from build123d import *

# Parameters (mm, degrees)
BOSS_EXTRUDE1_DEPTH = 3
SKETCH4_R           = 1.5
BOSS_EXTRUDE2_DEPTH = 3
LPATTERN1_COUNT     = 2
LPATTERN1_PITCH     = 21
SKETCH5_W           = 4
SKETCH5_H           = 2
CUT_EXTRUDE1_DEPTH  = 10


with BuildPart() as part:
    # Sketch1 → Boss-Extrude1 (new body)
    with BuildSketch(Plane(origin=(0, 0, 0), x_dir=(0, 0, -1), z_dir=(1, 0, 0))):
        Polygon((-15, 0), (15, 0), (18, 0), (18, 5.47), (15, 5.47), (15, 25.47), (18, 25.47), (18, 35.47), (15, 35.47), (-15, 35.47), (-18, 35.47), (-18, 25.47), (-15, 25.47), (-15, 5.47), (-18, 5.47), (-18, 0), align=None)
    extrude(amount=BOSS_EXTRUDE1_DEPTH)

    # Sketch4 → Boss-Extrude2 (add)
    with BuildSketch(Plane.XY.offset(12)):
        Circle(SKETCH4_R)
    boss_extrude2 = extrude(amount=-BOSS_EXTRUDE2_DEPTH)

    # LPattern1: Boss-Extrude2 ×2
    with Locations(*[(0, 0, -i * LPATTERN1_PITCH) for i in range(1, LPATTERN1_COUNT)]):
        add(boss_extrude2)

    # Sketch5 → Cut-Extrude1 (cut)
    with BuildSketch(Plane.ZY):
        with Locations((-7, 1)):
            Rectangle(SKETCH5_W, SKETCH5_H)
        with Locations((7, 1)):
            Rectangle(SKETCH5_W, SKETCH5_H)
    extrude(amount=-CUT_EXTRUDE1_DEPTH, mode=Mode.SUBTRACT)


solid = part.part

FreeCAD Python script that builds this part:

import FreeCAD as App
import Part
import Sketcher

doc = App.newDocument("Part")
body = doc.addObject("PartDesign::Body", "Body")

# Sketch on YZ plane
sketch1 = doc.addObject("Sketcher::SketchObject", "Sketch")
body.addObject(sketch1)
sketch1.AttachmentSupport = (doc.YZ_Plane, [""])
sketch1.MapMode = "FlatFace"
sketch1.addGeometry(Part.LineSegment(App.Vector(0, -18, 0), App.Vector(5.5, -18, 0)), False)
sketch1.addGeometry(Part.LineSegment(App.Vector(5.5, -18, 0), App.Vector(5.5, -15, 0)), False)
sketch1.addGeometry(Part.LineSegment(App.Vector(5.5, -15, 0), App.Vector(25.5, -15, 0)), False)
sketch1.addGeometry(Part.LineSegment(App.Vector(25.5, -15, 0), App.Vector(25.5, -18, 0)), False)
sketch1.addGeometry(Part.LineSegment(App.Vector(25.5, -18, 0), App.Vector(35.5, -18, 0)), False)
sketch1.addGeometry(Part.LineSegment(App.Vector(35.5, -18, 0), App.Vector(35.5, 18, 0)), False)
sketch1.addGeometry(Part.LineSegment(App.Vector(35.5, 18, 0), App.Vector(25.5, 18, 0)), False)
sketch1.addGeometry(Part.LineSegment(App.Vector(25.5, 18, 0), App.Vector(25.5, 15, 0)), False)
sketch1.addGeometry(Part.LineSegment(App.Vector(25.5, 15, 0), App.Vector(5.5, 15, 0)), False)
sketch1.addGeometry(Part.LineSegment(App.Vector(5.5, 15, 0), App.Vector(5.5, 18, 0)), False)
sketch1.addGeometry(Part.LineSegment(App.Vector(5.5, 18, 0), App.Vector(0, 18, 0)), False)
sketch1.addGeometry(Part.LineSegment(App.Vector(0, 18, 0), App.Vector(0, -18, 0)), False)
sketch1.addConstraint(Sketcher.Constraint("Coincident", 0, 2, 1, 1))
sketch1.addConstraint(Sketcher.Constraint("Coincident", 1, 2, 2, 1))
sketch1.addConstraint(Sketcher.Constraint("Coincident", 2, 2, 3, 1))
sketch1.addConstraint(Sketcher.Constraint("Coincident", 3, 2, 4, 1))
sketch1.addConstraint(Sketcher.Constraint("Coincident", 4, 2, 5, 1))
sketch1.addConstraint(Sketcher.Constraint("Coincident", 5, 2, 6, 1))
sketch1.addConstraint(Sketcher.Constraint("Coincident", 6, 2, 7, 1))
sketch1.addConstraint(Sketcher.Constraint("Coincident", 7, 2, 8, 1))
sketch1.addConstraint(Sketcher.Constraint("Coincident", 8, 2, 9, 1))
sketch1.addConstraint(Sketcher.Constraint("Coincident", 9, 2, 10, 1))
sketch1.addConstraint(Sketcher.Constraint("Coincident", 10, 2, 11, 1))
sketch1.addConstraint(Sketcher.Constraint("Coincident", 11, 2, 0, 1))
sketch1.addConstraint(Sketcher.Constraint("Horizontal", 0))
sketch1.addConstraint(Sketcher.Constraint("Vertical", 1))
sketch1.addConstraint(Sketcher.Constraint("Horizontal", 2))
sketch1.addConstraint(Sketcher.Constraint("Vertical", 3))
sketch1.addConstraint(Sketcher.Constraint("Horizontal", 4))
sketch1.addConstraint(Sketcher.Constraint("Vertical", 5))
sketch1.addConstraint(Sketcher.Constraint("Horizontal", 6))
sketch1.addConstraint(Sketcher.Constraint("Vertical", 7))
sketch1.addConstraint(Sketcher.Constraint("Horizontal", 8))
sketch1.addConstraint(Sketcher.Constraint("Vertical", 9))
sketch1.addConstraint(Sketcher.Constraint("Horizontal", 10))
sketch1.addConstraint(Sketcher.Constraint("Vertical", 11))
sketch1.addConstraint(Sketcher.Constraint("Symmetric", 10, 2, 11, 2, -1, 1))
sketch1.addConstraint(Sketcher.Constraint("Symmetric", 3, 2, 6, 2, -1))
sketch1.addConstraint(Sketcher.Constraint("Symmetric", 1, 2, 8, 2, -1))
sketch1.addConstraint(Sketcher.Constraint("Horizontal", 0, 2, 3, 2))
sketch1.addConstraint(Sketcher.Constraint("DistanceX", 2, 1, 2, 2, 20.0))
sketch1.addConstraint(Sketcher.Constraint("DistanceX", 4, 1, 4, 2, 10.0))
sketch1.addConstraint(Sketcher.Constraint("DistanceY", 1, 1, 1, 2, 3.0))
sketch1.addConstraint(Sketcher.Constraint("DistanceY", 5, 1, 5, 2, 36.0))
sketch1.addConstraint(Sketcher.Constraint("DistanceX", 0, 1, 0, 2, 5.47))
pad1 = doc.addObject("PartDesign::Pad", "Pad")
body.addObject(pad1)
pad1.Profile = sketch1
pad1.Length = 3

# Sketch on XY plane
sketch2 = doc.addObject("Sketcher::SketchObject", "Sketch001")
body.addObject(sketch2)
sketch2.AttachmentSupport = (doc.XY_Plane, [""])
sketch2.MapMode = "FlatFace"
sketch2.AttachmentOffset = App.Placement(App.Vector(0, 0, 12), App.Rotation())
sketch2.addGeometry(Part.Circle(App.Vector(0, 0, 0), App.Vector(0, 0, 1), 1.5), False)
sketch2.addConstraint(Sketcher.Constraint("Coincident", 0, 3, -1, 1))
sketch2.addConstraint(Sketcher.Constraint("Diameter", 0, 3.0))
pad2 = doc.addObject("PartDesign::Pad", "Pad001")
body.addObject(pad2)
pad2.Profile = sketch2
pad2.Length = 3
pad2.Reversed = True
doc.recompute()

linearpattern = doc.addObject("PartDesign::LinearPattern", "LinearPattern")
body.addObject(linearpattern)
linearpattern.Originals = [pad2]
linearpattern.Direction = (doc.Z_Axis, [""])
linearpattern.Mode = "offset"
linearpattern.Offset = 21
linearpattern.Occurrences = 2
linearpattern.Reversed = True
body.Tip = linearpattern

# Sketch on YZ plane
sketch3 = doc.addObject("Sketcher::SketchObject", "Sketch002")
body.addObject(sketch3)
sketch3.AttachmentSupport = (doc.YZ_Plane, [""])
sketch3.MapMode = "FlatFace"
sketch3.addGeometry(Part.LineSegment(App.Vector(2, -9, 0), App.Vector(0, -9, 0)), False)
sketch3.addGeometry(Part.LineSegment(App.Vector(0, -9, 0), App.Vector(0, -5, 0)), False)
sketch3.addGeometry(Part.LineSegment(App.Vector(0, -5, 0), App.Vector(2, -5, 0)), False)
sketch3.addGeometry(Part.LineSegment(App.Vector(2, -5, 0), App.Vector(2, -9, 0)), False)
sketch3.addGeometry(Part.LineSegment(App.Vector(2, 5, 0), App.Vector(0, 5, 0)), False)
sketch3.addGeometry(Part.LineSegment(App.Vector(0, 5, 0), App.Vector(0, 9, 0)), False)
sketch3.addGeometry(Part.LineSegment(App.Vector(0, 9, 0), App.Vector(2, 9, 0)), False)
sketch3.addGeometry(Part.LineSegment(App.Vector(2, 9, 0), App.Vector(2, 5, 0)), False)
sketch3.addConstraint(Sketcher.Constraint("Coincident", 0, 2, 1, 1))
sketch3.addConstraint(Sketcher.Constraint("Coincident", 1, 2, 2, 1))
sketch3.addConstraint(Sketcher.Constraint("Coincident", 2, 2, 3, 1))
sketch3.addConstraint(Sketcher.Constraint("Coincident", 3, 2, 0, 1))
sketch3.addConstraint(Sketcher.Constraint("Coincident", 4, 2, 5, 1))
sketch3.addConstraint(Sketcher.Constraint("Coincident", 5, 2, 6, 1))
sketch3.addConstraint(Sketcher.Constraint("Coincident", 6, 2, 7, 1))
sketch3.addConstraint(Sketcher.Constraint("Coincident", 7, 2, 4, 1))
sketch3.addConstraint(Sketcher.Constraint("Horizontal", 0))
sketch3.addConstraint(Sketcher.Constraint("Vertical", 1))
sketch3.addConstraint(Sketcher.Constraint("Horizontal", 2))
sketch3.addConstraint(Sketcher.Constraint("Vertical", 3))
sketch3.addConstraint(Sketcher.Constraint("Horizontal", 4))
sketch3.addConstraint(Sketcher.Constraint("Vertical", 5))
sketch3.addConstraint(Sketcher.Constraint("Horizontal", 6))
sketch3.addConstraint(Sketcher.Constraint("Vertical", 7))
sketch3.addConstraint(Sketcher.Constraint("Symmetric", 1, 2, 4, 2, -1, 1))
sketch3.addConstraint(Sketcher.Constraint("Symmetric", 0, 2, 5, 2, -1))
sketch3.addConstraint(Sketcher.Constraint("Vertical", 3, 2, 6, 2))
sketch3.addConstraint(Sketcher.Constraint("DistanceX", 0, 2, 0, 1, 2.0))
sketch3.addConstraint(Sketcher.Constraint("DistanceY", 1, 1, 1, 2, 4.0))
sketch3.addConstraint(Sketcher.Constraint("DistanceY", 0, 2, -1, 1, 9.0))
pocket1 = doc.addObject("PartDesign::Pocket", "Pocket")
body.addObject(pocket1)
pocket1.Profile = sketch3
pocket1.Length = 10
pocket1.Reversed = True

doc.recompute()
